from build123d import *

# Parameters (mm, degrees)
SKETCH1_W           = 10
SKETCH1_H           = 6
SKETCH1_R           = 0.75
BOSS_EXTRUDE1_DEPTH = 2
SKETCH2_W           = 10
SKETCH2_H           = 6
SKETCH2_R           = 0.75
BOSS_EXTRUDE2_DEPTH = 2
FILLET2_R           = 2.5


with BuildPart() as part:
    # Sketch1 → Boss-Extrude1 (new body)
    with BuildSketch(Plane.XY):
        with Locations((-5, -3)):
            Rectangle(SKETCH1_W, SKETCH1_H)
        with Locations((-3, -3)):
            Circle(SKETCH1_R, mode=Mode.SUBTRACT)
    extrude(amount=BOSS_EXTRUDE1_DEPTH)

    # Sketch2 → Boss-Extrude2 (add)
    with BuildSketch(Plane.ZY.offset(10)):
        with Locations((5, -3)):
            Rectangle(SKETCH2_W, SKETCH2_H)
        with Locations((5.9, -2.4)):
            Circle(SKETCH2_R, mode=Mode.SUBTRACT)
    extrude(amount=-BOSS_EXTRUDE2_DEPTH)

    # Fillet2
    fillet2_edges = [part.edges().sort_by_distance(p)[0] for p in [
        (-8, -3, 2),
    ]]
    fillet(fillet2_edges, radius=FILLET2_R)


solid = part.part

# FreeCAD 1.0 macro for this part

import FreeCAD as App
import Part
import Sketcher

V = App.Vector
Q = App.Units.Quantity


def edges_at(feature, points):
    """Names of the edges that pass closest to the given points."""
    edges = feature.Shape.Edges
    near = lambda p: min(range(len(edges)), key=lambda i: edges[i].distToShape(Part.Vertex(*p))[0])
    return sorted({f"Edge{near(p) + 1}" for p in points})


def add_polygon(sketch, points):
    """Adds a closed chain of lines whose ends are joined by coincident constraints."""
    first, n = sketch.GeometryCount, len(points)
    for a, b in zip(points, points[1:] + points[:1]):
        sketch.addGeometry(Part.LineSegment(App.Vector(*a, 0), App.Vector(*b, 0)), False)
    for i in range(n):
        sketch.addConstraint(Sketcher.Constraint("Coincident", first + i, 2, first + (i + 1) % n, 1))

doc = App.newDocument("Part")
params = doc.addObject("Spreadsheet::Sheet", "Params")
for row, (alias, value) in enumerate([
    ("sketch1_diameter", "1.5 mm"),
    ("sketch1_width", "10 mm"),
    ("sketch1_height", "6 mm"),
    ("pad1_length", "2 mm"),
    ("sketch2_diameter", "1.5 mm"),
    ("sketch2_width", "6 mm"),
    ("sketch2_height", "10 mm"),
    ("pad2_length", "2 mm"),
    ("fillet_radius", "2.5 mm"),
], start=1):
    params.set(f"A{row}", alias)
    params.set(f"B{row}", "=" + value)
    params.setAlias(f"B{row}", alias)

body = doc.addObject("PartDesign::Body", "Body")

sketch1 = body.newObject("Sketcher::SketchObject", "Sketch")
sketch1.AttachmentSupport = (doc.getObject("XY_Plane"), [""])
sketch1.MapMode = "FlatFace"
add_polygon(sketch1, [(-10, 0), (-10, -6), (0, -6), (0, 0)])
sketch1.addGeometry(Part.Circle(V(-3, -3, 0), V(0, 0, 1), 0.8), False)
sketch1.addConstraint([
    Sketcher.Constraint("Vertical", 0),
    Sketcher.Constraint("Horizontal", 1),
    Sketcher.Constraint("Vertical", 2),
    Sketcher.Constraint("Horizontal", 3),
    Sketcher.Constraint("Coincident", 2, 2, -1, 1),
    Sketcher.Constraint("Diameter", 4, Q("1.5 mm")),
    Sketcher.Constraint("DistanceX", 1, 1, 1, 2, Q("10 mm")),
    Sketcher.Constraint("DistanceY", 0, 2, 0, 1, Q("6 mm")),
    Sketcher.Constraint("DistanceX", 4, 3, -1, 1, Q("3 mm")),
    Sketcher.Constraint("DistanceY", 4, 3, -1, 1, Q("3 mm")),
])
sketch1.setExpression("Constraints[9]", "Params.sketch1_diameter")
sketch1.setExpression("Constraints[10]", "Params.sketch1_width")
sketch1.setExpression("Constraints[11]", "Params.sketch1_height")
pad1 = body.newObject("PartDesign::Pad", "Pad")
pad1.Profile = sketch1
pad1.setExpression("Length", "Params.pad1_length")

sketch2 = body.newObject("Sketcher::SketchObject", "Sketch001")
sketch2.AttachmentSupport = (doc.getObject("YZ_Plane"), [""])
sketch2.MapMode = "FlatFace"
sketch2.AttachmentOffset = App.Placement(V(0, 0, -10), App.Rotation())
add_polygon(sketch2, [(0, 0), (-6, 0), (-6, 10), (0, 10)])
sketch2.addGeometry(Part.Circle(V(-2.4, 5.9, 0), V(0, 0, 1), 0.8), False)
sketch2.addConstraint([
    Sketcher.Constraint("Horizontal", 0),
    Sketcher.Constraint("Vertical", 1),
    Sketcher.Constraint("Horizontal", 2),
    Sketcher.Constraint("Vertical", 3),
    Sketcher.Constraint("Coincident", 3, 2, -1, 1),
    Sketcher.Constraint("Diameter", 4, Q("1.5 mm")),
    Sketcher.Constraint("DistanceX", 0, 2, 0, 1, Q("6 mm")),
    Sketcher.Constraint("DistanceY", 1, 1, 1, 2, Q("10 mm")),
    Sketcher.Constraint("DistanceX", 4, 3, -1, 1, Q("2.4 mm")),
    Sketcher.Constraint("DistanceY", -1, 1, 4, 3, Q("5.9 mm")),
])
sketch2.setExpression("Constraints[9]", "Params.sketch2_diameter")
sketch2.setExpression("Constraints[10]", "Params.sketch2_width")
sketch2.setExpression("Constraints[11]", "Params.sketch2_height")
pad2 = body.newObject("PartDesign::Pad", "Pad001")
pad2.Profile = sketch2
pad2.setExpression("Length", "Params.pad2_length")
doc.recompute()

fillet = body.newObject("PartDesign::Fillet", "Fillet")
fillet.Base = (pad2, edges_at(pad2, [(-8, -3, 2)]))
fillet.setExpression("Radius", "Params.fillet_radius")

doc.recompute()
